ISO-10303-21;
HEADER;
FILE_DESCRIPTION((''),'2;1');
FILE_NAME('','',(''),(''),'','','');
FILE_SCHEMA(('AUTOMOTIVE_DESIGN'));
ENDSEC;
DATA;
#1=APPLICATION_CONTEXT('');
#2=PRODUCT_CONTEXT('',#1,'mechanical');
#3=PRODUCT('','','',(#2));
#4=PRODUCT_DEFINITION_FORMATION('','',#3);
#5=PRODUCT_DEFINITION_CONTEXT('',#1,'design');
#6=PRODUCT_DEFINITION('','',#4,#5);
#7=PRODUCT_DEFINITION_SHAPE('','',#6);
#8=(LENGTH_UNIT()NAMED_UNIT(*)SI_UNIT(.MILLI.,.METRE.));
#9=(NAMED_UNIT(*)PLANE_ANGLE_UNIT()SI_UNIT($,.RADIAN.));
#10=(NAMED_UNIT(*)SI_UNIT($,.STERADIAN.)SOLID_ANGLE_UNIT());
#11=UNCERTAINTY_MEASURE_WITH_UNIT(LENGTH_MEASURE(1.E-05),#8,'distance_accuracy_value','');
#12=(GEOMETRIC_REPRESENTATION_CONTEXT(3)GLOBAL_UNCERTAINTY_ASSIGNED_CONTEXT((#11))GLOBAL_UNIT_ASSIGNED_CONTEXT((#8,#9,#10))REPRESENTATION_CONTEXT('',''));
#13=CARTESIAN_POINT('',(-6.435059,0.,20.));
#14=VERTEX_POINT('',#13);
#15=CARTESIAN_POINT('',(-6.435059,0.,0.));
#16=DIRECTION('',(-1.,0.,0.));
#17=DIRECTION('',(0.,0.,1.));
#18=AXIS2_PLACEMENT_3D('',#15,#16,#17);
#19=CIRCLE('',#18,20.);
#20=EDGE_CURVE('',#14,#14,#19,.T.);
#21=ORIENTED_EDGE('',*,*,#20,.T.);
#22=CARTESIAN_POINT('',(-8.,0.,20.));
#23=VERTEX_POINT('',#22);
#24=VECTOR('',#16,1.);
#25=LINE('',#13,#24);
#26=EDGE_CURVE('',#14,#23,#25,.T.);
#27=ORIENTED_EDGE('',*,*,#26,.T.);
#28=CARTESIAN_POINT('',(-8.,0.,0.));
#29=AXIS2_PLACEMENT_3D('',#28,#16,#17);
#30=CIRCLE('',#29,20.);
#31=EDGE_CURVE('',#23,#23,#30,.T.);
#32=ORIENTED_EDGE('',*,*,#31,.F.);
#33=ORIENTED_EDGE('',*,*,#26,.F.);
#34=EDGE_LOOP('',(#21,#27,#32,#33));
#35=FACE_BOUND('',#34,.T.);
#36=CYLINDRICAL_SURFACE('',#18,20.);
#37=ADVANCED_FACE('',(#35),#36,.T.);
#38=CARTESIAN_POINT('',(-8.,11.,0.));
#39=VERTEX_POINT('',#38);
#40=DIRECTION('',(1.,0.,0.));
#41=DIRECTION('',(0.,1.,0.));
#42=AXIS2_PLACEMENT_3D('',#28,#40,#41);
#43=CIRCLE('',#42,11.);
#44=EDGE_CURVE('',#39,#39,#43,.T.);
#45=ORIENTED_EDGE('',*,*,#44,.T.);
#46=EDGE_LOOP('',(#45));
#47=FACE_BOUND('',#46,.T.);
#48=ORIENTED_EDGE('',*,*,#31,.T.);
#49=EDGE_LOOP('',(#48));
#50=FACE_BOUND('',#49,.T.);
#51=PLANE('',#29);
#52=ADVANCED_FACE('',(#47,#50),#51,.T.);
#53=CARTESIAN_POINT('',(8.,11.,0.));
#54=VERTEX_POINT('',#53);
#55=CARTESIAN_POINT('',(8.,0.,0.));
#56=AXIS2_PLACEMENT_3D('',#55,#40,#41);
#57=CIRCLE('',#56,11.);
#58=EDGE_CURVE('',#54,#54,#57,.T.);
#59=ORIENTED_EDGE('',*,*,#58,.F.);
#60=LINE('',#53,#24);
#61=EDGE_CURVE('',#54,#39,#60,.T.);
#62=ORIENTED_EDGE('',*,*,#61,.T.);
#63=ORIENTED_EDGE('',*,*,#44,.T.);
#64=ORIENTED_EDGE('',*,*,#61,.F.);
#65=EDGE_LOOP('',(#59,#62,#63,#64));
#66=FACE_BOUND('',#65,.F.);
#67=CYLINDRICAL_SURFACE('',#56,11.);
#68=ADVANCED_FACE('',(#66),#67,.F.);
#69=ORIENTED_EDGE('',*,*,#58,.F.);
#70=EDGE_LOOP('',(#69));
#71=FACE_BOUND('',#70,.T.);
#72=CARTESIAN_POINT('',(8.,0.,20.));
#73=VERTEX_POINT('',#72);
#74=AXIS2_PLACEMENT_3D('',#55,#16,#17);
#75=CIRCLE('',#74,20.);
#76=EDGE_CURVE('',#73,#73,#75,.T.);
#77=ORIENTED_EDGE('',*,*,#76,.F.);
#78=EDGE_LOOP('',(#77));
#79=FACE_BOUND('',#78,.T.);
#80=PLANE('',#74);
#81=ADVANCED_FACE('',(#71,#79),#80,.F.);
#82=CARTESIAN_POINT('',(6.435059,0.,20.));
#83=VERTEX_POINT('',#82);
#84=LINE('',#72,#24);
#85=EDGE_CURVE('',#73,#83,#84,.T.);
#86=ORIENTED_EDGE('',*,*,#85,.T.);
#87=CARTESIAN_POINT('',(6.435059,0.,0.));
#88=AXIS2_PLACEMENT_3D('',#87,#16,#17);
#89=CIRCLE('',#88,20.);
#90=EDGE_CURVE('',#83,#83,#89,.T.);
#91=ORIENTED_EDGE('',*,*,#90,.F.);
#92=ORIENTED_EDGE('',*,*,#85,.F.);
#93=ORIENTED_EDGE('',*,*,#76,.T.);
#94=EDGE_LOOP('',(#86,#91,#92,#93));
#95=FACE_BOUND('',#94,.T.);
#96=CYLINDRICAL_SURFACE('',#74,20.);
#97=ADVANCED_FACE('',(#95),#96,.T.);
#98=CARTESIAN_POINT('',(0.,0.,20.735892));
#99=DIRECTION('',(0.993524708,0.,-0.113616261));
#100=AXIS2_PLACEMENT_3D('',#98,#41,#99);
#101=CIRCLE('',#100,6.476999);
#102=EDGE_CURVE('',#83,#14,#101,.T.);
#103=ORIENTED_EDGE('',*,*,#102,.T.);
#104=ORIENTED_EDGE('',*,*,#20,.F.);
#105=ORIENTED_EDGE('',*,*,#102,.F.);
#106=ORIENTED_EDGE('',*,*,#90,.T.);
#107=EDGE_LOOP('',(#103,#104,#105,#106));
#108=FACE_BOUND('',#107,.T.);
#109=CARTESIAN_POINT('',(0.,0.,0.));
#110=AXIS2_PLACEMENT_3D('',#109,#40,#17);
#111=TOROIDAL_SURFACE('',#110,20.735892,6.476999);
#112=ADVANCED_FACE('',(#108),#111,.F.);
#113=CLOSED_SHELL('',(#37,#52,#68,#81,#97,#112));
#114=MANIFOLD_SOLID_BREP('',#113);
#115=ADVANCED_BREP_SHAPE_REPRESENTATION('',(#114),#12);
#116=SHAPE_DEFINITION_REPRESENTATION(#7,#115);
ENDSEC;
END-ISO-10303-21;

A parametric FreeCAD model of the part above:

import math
import FreeCAD as App
import Part
import Sketcher

V = App.Vector

doc = App.newDocument("Part")
body = doc.addObject("PartDesign::Body", "Body")

# Sketch on XZ plane
sketch1 = body.newObject("Sketcher::SketchObject", "Sketch")
sketch1.AttachmentSupport = (doc.getObject("XZ_Plane"), [""])
sketch1.MapMode = "FlatFace"
sketch1.addGeometry(Part.LineSegment(V(-8, 0, 0), V(8, 0, 0)), False)
sketch1.addGeometry(Part.LineSegment(V(8, 0, 0), V(8, 20, 0)), False)
sketch1.addGeometry(Part.LineSegment(V(8, 20, 0), V(6.435059, 20, 0)), False)
sketch1.addGeometry(Part.ArcOfCircle(Part.Circle(V(0, 20.735892, 0), V(0, 0, 1), 6.476999), math.radians(-173.47618), math.radians(-6.52382)), False)
sketch1.addGeometry(Part.LineSegment(V(-6.435059, 20, 0), V(-8, 20, 0)), False)
sketch1.addGeometry(Part.LineSegment(V(-8, 20, 0), V(-8, 0, 0)), False)
sketch1.addConstraint(Sketcher.Constraint("Coincident", 0, 2, 1, 1))
sketch1.addConstraint(Sketcher.Constraint("Coincident", 1, 2, 2, 1))
sketch1.addConstraint(Sketcher.Constraint("Coincident", 2, 2, 3, 2))
sketch1.addConstraint(Sketcher.Constraint("Coincident", 3, 1, 4, 1))
sketch1.addConstraint(Sketcher.Constraint("Coincident", 4, 2, 5, 1))
sketch1.addConstraint(Sketcher.Constraint("Coincident", 5, 2, 0, 1))
sketch1.addConstraint(Sketcher.Constraint("Horizontal", 0))
sketch1.addConstraint(Sketcher.Constraint("Vertical", 1))
sketch1.addConstraint(Sketcher.Constraint("Horizontal", 2))
sketch1.addConstraint(Sketcher.Constraint("Horizontal", 4))
sketch1.addConstraint(Sketcher.Constraint("Vertical", 5))
sketch1.addConstraint(Sketcher.Constraint("Symmetric", 0, 2, 5, 2, -1, 1))
sketch1.addConstraint(Sketcher.Constraint("Symmetric", 2, 2, 3, 1, -2))
sketch1.addConstraint(Sketcher.Constraint("DistanceX", 0, 1, 0, 2, 16.0))
sketch1.addConstraint(Sketcher.Constraint("DistanceY", 1, 1, 1, 2, 20.0))
sketch1.addConstraint(Sketcher.Constraint("Radius", 3, 6.476999))
sketch1.addConstraint(Sketcher.Constraint("DistanceX", 2, 2, 2, 1, 1.564941))
revolution = body.newObject("PartDesign::Revolution", "Revolution")
revolution.Profile = sketch1
revolution.ReferenceAxis = (sketch1, ["H_Axis"])
revolution.Angle = 360

# Sketch on YZ plane
sketch2 = body.newObject("Sketcher::SketchObject", "Sketch001")
sketch2.AttachmentSupport = (doc.getObject("YZ_Plane"), [""])
sketch2.MapMode = "FlatFace"
sketch2.AttachmentOffset = App.Placement(V(0, 0, 8), App.Rotation())
sketch2.addGeometry(Part.Circle(V(0, 0, 0), V(0, 0, 1), 11), False)
sketch2.addConstraint(Sketcher.Constraint("Coincident", 0, 3, -1, 1))
sketch2.addConstraint(Sketcher.Constraint("Diameter", 0, 22.0))
pocket1 = body.newObject("PartDesign::Pocket", "Pocket")
pocket1.Profile = sketch2
pocket1.Type = "ThroughAll"

doc.recompute()
